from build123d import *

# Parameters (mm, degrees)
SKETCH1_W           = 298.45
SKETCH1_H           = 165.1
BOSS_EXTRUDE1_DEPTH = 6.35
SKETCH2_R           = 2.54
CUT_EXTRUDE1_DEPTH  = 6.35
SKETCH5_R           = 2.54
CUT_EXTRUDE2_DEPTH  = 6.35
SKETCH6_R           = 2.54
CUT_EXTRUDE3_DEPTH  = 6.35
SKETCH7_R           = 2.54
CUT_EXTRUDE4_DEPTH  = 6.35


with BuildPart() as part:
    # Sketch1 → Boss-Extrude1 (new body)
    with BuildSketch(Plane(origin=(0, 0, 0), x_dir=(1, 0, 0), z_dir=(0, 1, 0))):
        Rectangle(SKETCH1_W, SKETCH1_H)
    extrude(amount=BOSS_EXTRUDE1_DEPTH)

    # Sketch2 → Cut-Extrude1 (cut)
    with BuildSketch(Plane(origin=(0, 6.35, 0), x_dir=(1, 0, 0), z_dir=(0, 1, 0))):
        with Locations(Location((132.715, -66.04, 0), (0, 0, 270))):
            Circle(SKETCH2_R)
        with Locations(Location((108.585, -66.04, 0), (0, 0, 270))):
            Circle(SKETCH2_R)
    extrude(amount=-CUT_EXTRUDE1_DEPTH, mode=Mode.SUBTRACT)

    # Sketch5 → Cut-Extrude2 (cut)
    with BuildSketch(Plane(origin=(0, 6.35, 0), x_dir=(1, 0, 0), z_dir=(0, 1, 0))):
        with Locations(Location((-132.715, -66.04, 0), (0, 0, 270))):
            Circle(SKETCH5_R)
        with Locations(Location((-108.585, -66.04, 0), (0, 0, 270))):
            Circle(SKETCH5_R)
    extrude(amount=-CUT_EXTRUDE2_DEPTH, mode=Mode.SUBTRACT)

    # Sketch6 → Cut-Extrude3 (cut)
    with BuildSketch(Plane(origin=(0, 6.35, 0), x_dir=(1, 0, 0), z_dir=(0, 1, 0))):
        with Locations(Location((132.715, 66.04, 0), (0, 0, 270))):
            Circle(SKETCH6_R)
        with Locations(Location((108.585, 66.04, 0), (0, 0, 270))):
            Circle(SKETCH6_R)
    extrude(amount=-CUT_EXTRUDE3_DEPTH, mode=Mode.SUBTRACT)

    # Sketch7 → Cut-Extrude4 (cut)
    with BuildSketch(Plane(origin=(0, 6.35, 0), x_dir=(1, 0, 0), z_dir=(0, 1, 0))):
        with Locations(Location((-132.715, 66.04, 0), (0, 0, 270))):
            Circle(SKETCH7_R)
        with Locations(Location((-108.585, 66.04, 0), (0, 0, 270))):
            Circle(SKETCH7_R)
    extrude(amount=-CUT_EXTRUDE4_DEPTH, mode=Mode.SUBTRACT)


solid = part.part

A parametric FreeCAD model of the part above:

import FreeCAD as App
import Part
import Sketcher
from FreeCAD import Vector
Q = App.Units.Quantity


def add_polygon(sketch, points):
    """Adds a closed chain of lines whose ends are joined by coincident constraints."""
    first, n = sketch.GeometryCount, len(points)
    for a, b in zip(points, points[1:] + points[:1]):
        sketch.addGeometry(Part.LineSegment(App.Vector(*a, 0), App.Vector(*b, 0)), False)
    for i in range(n):
        sketch.addConstraint(Sketcher.Constraint("Coincident", first + i, 2, first + (i + 1) % n, 1))

doc = App.newDocument("Part")
body = doc.addObject("PartDesign::Body", "Body")

sketch1 = body.newObject("Sketcher::SketchObject", "Sketch")
sketch1.AttachmentSupport = (doc.getObject("XZ_Plane"), [""])
sketch1.MapMode = "FlatFace"
add_polygon(sketch1, [(-149, -83), (-149, 83), (149, 83), (149, -83)])
sketch1.addConstraint(Sketcher.Constraint("Vertical", 0))
sketch1.addConstraint(Sketcher.Constraint("Horizontal", 1))
sketch1.addConstraint(Sketcher.Constraint("Vertical", 2))
sketch1.addConstraint(Sketcher.Constraint("Horizontal", 3))
sketch1.addConstraint(Sketcher.Constraint("Symmetric", 0, 2, 2, 2, -1, 1))
sketch1.addConstraint(Sketcher.Constraint("DistanceY", 0, 1, 0, 2, Q("6.5 in")))
sketch1.addConstraint(Sketcher.Constraint("DistanceX", 1, 1, 1, 2, Q("11.75 in")))
pad1 = body.newObject("PartDesign::Pad", "Pad")
pad1.Profile = sketch1
pad1.Length = Q("0.25 in")
pad1.Reversed = True

sketch2 = body.newObject("Sketcher::SketchObject", "Sketch001")
sketch2.AttachmentSupport = (doc.getObject("XZ_Plane"), [""])
sketch2.MapMode = "FlatFace"
sketch2.AttachmentOffset = App.Placement(Vector(0, 0, -0.25 * 25.4), App.Rotation())
sketch2.addGeometry(Part.Circle(Vector(132.7, 66, 0), Vector(0, 0, 1), 2.5), False)
sketch2.addGeometry(Part.Circle(Vector(108.6, 66, 0), Vector(0, 0, 1), 2.5), False)
sketch2.addConstraint(Sketcher.Constraint("Equal", 0, 1))
sketch2.addConstraint(Sketcher.Constraint("Horizontal", 0, 3, 1, 3))
sketch2.addConstraint(Sketcher.Constraint("Diameter", 0, Q("0.2 in")))
sketch2.addConstraint(Sketcher.Constraint("DistanceY", -1, 1, 0, 3, Q("2.6 in")))
sketch2.addConstraint(Sketcher.Constraint("DistanceX", 1, 3, 0, 3, Q("0.95 in")))
sketch2.addConstraint(Sketcher.Constraint("DistanceX", -1, 1, 0, 3, Q("5.225 in")))
pocket1 = body.newObject("PartDesign::Pocket", "Pocket")
pocket1.Profile = sketch2
pocket1.Length = Q("0.25 in")
pocket1.Reversed = True

sketch3 = body.newObject("Sketcher::SketchObject", "Sketch002")
sketch3.AttachmentSupport = (doc.getObject("XZ_Plane"), [""])
sketch3.MapMode = "FlatFace"
sketch3.AttachmentOffset = App.Placement(Vector(0, 0, -0.25 * 25.4), App.Rotation())
sketch3.addGeometry(Part.Circle(Vector(-132.7, 66, 0), Vector(0, 0, 1), 2.5), False)
sketch3.addGeometry(Part.Circle(Vector(-108.6, 66, 0), Vector(0, 0, 1), 2.5), False)
sketch3.addConstraint(Sketcher.Constraint("Equal", 0, 1))
sketch3.addConstraint(Sketcher.Constraint("Horizontal", 0, 3, 1, 3))
sketch3.addConstraint(Sketcher.Constraint("Diameter", 0, Q("0.2 in")))
sketch3.addConstraint(Sketcher.Constraint("DistanceY", -1, 1, 0, 3, Q("2.6 in")))
sketch3.addConstraint(Sketcher.Constraint("DistanceX", 0, 3, 1, 3, Q("0.95 in")))
sketch3.addConstraint(Sketcher.Constraint("DistanceX", 0, 3, -1, 1, Q("5.225 in")))
pocket2 = body.newObject("PartDesign::Pocket", "Pocket001")
pocket2.Profile = sketch3
pocket2.Length = Q("0.25 in")
pocket2.Reversed = True

sketch4 = body.newObject("Sketcher::SketchObject", "Sketch003")
sketch4.AttachmentSupport = (doc.getObject("XZ_Plane"), [""])
sketch4.MapMode = "FlatFace"
sketch4.AttachmentOffset = App.Placement(Vector(0, 0, -0.25 * 25.4), App.Rotation())
sketch4.addGeometry(Part.Circle(Vector(132.7, -66, 0), Vector(0, 0, 1), 2.5), False)
sketch4.addGeometry(Part.Circle(Vector(108.6, -66, 0), Vector(0, 0, 1), 2.5), False)
sketch4.addConstraint(Sketcher.Constraint("Equal", 0, 1))
sketch4.addConstraint(Sketcher.Constraint("Horizontal", 0, 3, 1, 3))
sketch4.addConstraint(Sketcher.Constraint("Diameter", 0, Q("0.2 in")))
sketch4.addConstraint(Sketcher.Constraint("DistanceY", 0, 3, -1, 1, Q("2.6 in")))
sketch4.addConstraint(Sketcher.Constraint("DistanceX", 1, 3, 0, 3, Q("0.95 in")))
sketch4.addConstraint(Sketcher.Constraint("DistanceX", -1, 1, 0, 3, Q("5.225 in")))
pocket3 = body.newObject("PartDesign::Pocket", "Pocket002")
pocket3.Profile = sketch4
pocket3.Length = Q("0.25 in")
pocket3.Reversed = True

sketch5 = body.newObject("Sketcher::SketchObject", "Sketch004")
sketch5.AttachmentSupport = (doc.getObject("XZ_Plane"), [""])
sketch5.MapMode = "FlatFace"
sketch5.AttachmentOffset = App.Placement(Vector(0, 0, -0.25 * 25.4), App.Rotation())
sketch5.addGeometry(Part.Circle(Vector(-132.7, -66, 0), Vector(0, 0, 1), 2.5), False)
sketch5.addGeometry(Part.Circle(Vector(-108.6, -66, 0), Vector(0, 0, 1), 2.5), False)
sketch5.addConstraint(Sketcher.Constraint("Equal", 0, 1))
sketch5.addConstraint(Sketcher.Constraint("Horizontal", 0, 3, 1, 3))
sketch5.addConstraint(Sketcher.Constraint("Diameter", 0, Q("0.2 in")))
sketch5.addConstraint(Sketcher.Constraint("DistanceY", 0, 3, -1, 1, Q("2.6 in")))
sketch5.addConstraint(Sketcher.Constraint("DistanceX", 0, 3, 1, 3, Q("0.95 in")))
sketch5.addConstraint(Sketcher.Constraint("DistanceX", 0, 3, -1, 1, Q("5.225 in")))
pocket4 = body.newObject("PartDesign::Pocket", "Pocket003")
pocket4.Profile = sketch5
pocket4.Length = Q("0.25 in")
pocket4.Reversed = True

doc.recompute()
